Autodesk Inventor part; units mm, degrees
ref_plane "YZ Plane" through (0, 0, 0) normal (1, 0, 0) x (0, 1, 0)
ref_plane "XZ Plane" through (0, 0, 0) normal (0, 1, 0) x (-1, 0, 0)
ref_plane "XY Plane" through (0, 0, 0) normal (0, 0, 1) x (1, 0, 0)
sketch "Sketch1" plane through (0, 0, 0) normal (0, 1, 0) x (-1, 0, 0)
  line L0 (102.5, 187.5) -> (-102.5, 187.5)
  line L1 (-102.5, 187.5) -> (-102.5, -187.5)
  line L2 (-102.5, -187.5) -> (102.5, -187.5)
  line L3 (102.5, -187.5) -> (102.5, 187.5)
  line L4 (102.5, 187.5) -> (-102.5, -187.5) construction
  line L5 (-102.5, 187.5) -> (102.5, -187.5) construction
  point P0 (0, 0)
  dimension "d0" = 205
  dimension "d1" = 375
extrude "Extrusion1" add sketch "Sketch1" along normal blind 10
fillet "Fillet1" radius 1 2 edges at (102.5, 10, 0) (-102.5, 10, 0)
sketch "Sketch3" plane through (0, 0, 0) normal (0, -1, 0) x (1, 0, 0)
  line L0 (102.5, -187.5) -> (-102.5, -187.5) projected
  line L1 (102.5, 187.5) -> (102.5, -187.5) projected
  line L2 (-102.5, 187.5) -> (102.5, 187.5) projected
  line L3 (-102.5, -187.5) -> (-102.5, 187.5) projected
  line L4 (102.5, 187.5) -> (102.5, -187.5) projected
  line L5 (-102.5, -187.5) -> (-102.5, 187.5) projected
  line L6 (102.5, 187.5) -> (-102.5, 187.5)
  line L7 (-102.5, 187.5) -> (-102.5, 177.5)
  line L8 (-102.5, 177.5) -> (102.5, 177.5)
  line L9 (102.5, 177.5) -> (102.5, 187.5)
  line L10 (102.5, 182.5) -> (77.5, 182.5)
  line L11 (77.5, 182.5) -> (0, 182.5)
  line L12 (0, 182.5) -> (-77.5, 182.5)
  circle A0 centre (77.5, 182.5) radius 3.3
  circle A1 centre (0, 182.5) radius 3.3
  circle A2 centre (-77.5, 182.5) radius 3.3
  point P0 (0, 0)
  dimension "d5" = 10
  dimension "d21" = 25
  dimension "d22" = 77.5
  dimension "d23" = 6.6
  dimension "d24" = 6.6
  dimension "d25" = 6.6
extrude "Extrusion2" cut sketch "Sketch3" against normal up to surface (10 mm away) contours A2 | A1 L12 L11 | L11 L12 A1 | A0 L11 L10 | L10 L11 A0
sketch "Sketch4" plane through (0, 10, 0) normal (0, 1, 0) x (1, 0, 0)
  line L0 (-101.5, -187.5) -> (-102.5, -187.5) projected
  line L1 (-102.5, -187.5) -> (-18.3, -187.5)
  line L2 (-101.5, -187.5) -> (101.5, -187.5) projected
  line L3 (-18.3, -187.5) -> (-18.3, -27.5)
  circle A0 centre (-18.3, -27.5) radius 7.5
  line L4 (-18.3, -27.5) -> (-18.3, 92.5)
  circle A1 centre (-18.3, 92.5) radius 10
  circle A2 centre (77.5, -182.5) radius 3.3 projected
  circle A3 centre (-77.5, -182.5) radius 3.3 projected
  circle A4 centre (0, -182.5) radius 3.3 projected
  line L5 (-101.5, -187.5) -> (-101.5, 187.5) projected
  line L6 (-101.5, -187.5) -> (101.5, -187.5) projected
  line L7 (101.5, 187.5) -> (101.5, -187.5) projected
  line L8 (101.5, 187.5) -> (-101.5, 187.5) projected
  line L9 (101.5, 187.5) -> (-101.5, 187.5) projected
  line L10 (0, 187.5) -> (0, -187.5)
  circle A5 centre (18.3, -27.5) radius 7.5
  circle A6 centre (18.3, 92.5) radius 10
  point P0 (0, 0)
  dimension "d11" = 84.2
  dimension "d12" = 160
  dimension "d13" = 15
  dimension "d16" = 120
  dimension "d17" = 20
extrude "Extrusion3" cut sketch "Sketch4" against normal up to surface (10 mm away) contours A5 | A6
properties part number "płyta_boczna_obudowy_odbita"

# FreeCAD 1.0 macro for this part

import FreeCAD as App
import Part
import Sketcher
from FreeCAD import Vector
Q = App.Units.Quantity


def edges_at(feature, points):
    """Names of the edges that pass closest to the given points."""
    edges = feature.Shape.Edges
    near = lambda p: min(range(len(edges)), key=lambda i: edges[i].distToShape(Part.Vertex(*p))[0])
    return sorted({f"Edge{near(p) + 1}" for p in points})

doc = App.newDocument("Part")
params = doc.addObject("Spreadsheet::Sheet", "Params")
for row, (alias, value) in enumerate([
    ("sketch1_width", "205 mm"),
    ("sketch1_height", "375 mm"),
    ("pad1_length", "10 mm"),
    ("fillet_radius", "1 mm"),
    ("sketch2_diameter", "6.6 mm"),
    ("pocket1_length", "10 mm"),
    ("sketch3_diameter", "15 mm"),
    ("sketch3_diameter2", "20 mm"),
    ("pocket2_length", "10 mm"),
], start=1):
    params.set(f"A{row}", alias)
    params.set(f"B{row}", "=" + value)
    params.setAlias(f"B{row}", alias)

body = doc.addObject("PartDesign::Body", "Body")

# Sketch on XZ plane
sketch1 = body.newObject("Sketcher::SketchObject", "Sketch")
sketch1.AttachmentSupport = (doc.getObject("XZ_Plane"), [""])
sketch1.MapMode = "FlatFace"
sketch1.addGeometry(Part.LineSegment(Vector(-102, -188, 0), Vector(-102, 188, 0)), False)
sketch1.addGeometry(Part.LineSegment(Vector(-102, 188, 0), Vector(102, 188, 0)), False)
sketch1.addGeometry(Part.LineSegment(Vector(102, 188, 0), Vector(102, -188, 0)), False)
sketch1.addGeometry(Part.LineSegment(Vector(102, -188, 0), Vector(-102, -188, 0)), False)
sketch1.addConstraint(Sketcher.Constraint("Coincident", 0, 2, 1, 1))
sketch1.addConstraint(Sketcher.Constraint("Coincident", 1, 2, 2, 1))
sketch1.addConstraint(Sketcher.Constraint("Coincident", 2, 2, 3, 1))
sketch1.addConstraint(Sketcher.Constraint("Coincident", 3, 2, 0, 1))
sketch1.addConstraint(Sketcher.Constraint("Vertical", 0))
sketch1.addConstraint(Sketcher.Constraint("Horizontal", 1))
sketch1.addConstraint(Sketcher.Constraint("Vertical", 2))
sketch1.addConstraint(Sketcher.Constraint("Horizontal", 3))
sketch1.addConstraint(Sketcher.Constraint("Symmetric", 0, 2, 2, 2, -1, 1))
sketch1.addConstraint(Sketcher.Constraint("DistanceX", 1, 1, 1, 2, Q("205 mm")))
sketch1.addConstraint(Sketcher.Constraint("DistanceY", 0, 1, 0, 2, Q("375 mm")))
sketch1.setExpression("Constraints[9]", "Params.sketch1_width")
sketch1.setExpression("Constraints[10]", "Params.sketch1_height")
pad1 = body.newObject("PartDesign::Pad", "Pad")
pad1.Profile = sketch1
pad1.setExpression("Length", "Params.pad1_length")
pad1.Reversed = True
doc.recompute()

fillet = body.newObject("PartDesign::Fillet", "Fillet")
fillet.Base = (pad1, edges_at(pad1, [(102.5, 10, 0), (-102.5, 10, 0)]))
fillet.setExpression("Radius", "Params.fillet_radius")

# Sketch on XZ plane
sketch2 = body.newObject("Sketcher::SketchObject", "Sketch001")
sketch2.AttachmentSupport = (doc.getObject("XZ_Plane"), [""])
sketch2.MapMode = "FlatFace"
sketch2.addGeometry(Part.Circle(Vector(-77.5, 182.5, 0), Vector(0, 0, 1), 3.3), False)
sketch2.addGeometry(Part.Circle(Vector(0, 182.5, 0), Vector(0, 0, 1), 3.3), False)
sketch2.addGeometry(Part.Circle(Vector(77.5, 182.5, 0), Vector(0, 0, 1), 3.3), False)
sketch2.addConstraint(Sketcher.Constraint("Equal", 0, 1))
sketch2.addConstraint(Sketcher.Constraint("Equal", 1, 2))
sketch2.addConstraint(Sketcher.Constraint("Symmetric", 0, 3, 2, 3, -2))
sketch2.addConstraint(Sketcher.Constraint("PointOnObject", 1, 3, -2))
sketch2.addConstraint(Sketcher.Constraint("Horizontal", 0, 3, 1, 3))
sketch2.addConstraint(Sketcher.Constraint("Diameter", 0, Q("6.6 mm")))
sketch2.addConstraint(Sketcher.Constraint("DistanceX", 0, 3, -1, 1, Q("77.5 mm")))
sketch2.addConstraint(Sketcher.Constraint("DistanceY", -1, 1, 0, 3, Q("182.5 mm")))
sketch2.setExpression("Constraints[5]", "Params.sketch2_diameter")
pocket1 = body.newObject("PartDesign::Pocket", "Pocket")
pocket1.Profile = sketch2
pocket1.setExpression("Length", "Params.pocket1_length")

# Sketch on XZ plane
sketch3 = body.newObject("Sketcher::SketchObject", "Sketch002")
sketch3.AttachmentSupport = (doc.getObject("XZ_Plane"), [""])
sketch3.MapMode = "FlatFace"
sketch3.AttachmentOffset = App.Placement(Vector(0, 0, -10), App.Rotation())
sketch3.addGeometry(Part.Circle(Vector(18, 28, 0), Vector(0, 0, 1), 8), False)
sketch3.addGeometry(Part.Circle(Vector(18, -92, 0), Vector(0, 0, 1), 10), False)
sketch3.addConstraint(Sketcher.Constraint("Vertical", 0, 3, 1, 3))
sketch3.addConstraint(Sketcher.Constraint("Diameter", 0, Q("15 mm")))
sketch3.addConstraint(Sketcher.Constraint("Diameter", 1, Q("20 mm")))
sketch3.addConstraint(Sketcher.Constraint("DistanceY", 1, 3, 0, 3, Q("120 mm")))
sketch3.addConstraint(Sketcher.Constraint("DistanceX", -1, 1, 0, 3, Q("18.3 mm")))
sketch3.addConstraint(Sketcher.Constraint("DistanceY", -1, 1, 0, 3, Q("27.5 mm")))
sketch3.setExpression("Constraints[1]", "Params.sketch3_diameter")
sketch3.setExpression("Constraints[2]", "Params.sketch3_diameter2")
pocket2 = body.newObject("PartDesign::Pocket", "Pocket001")
pocket2.Profile = sketch3
pocket2.setExpression("Length", "Params.pocket2_length")
pocket2.Reversed = True

doc.recompute()
